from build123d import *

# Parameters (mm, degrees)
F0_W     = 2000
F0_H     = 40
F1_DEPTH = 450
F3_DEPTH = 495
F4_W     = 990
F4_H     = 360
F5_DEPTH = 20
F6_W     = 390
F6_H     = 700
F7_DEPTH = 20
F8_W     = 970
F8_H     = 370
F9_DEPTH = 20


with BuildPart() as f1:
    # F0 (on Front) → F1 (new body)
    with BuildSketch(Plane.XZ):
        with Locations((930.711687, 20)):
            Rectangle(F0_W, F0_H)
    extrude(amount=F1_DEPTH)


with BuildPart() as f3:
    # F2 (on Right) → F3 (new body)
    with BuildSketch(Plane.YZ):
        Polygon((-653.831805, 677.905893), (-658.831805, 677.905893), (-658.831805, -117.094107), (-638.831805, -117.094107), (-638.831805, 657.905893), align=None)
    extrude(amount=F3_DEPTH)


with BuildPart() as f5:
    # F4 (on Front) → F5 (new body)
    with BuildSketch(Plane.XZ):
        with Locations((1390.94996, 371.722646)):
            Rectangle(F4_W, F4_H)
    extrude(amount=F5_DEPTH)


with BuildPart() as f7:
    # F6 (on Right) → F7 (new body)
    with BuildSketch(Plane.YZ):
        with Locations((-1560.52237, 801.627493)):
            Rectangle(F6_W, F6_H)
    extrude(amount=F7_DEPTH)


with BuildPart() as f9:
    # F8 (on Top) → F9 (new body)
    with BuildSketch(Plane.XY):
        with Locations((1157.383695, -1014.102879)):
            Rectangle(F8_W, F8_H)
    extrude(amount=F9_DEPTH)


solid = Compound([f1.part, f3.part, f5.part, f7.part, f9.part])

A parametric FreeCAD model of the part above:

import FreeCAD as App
import Part
import Sketcher
from FreeCAD import Vector
Q = App.Units.Quantity

doc = App.newDocument("Part")
body = doc.addObject("PartDesign::Body", "Body")

sketch1 = doc.addObject("Sketcher::SketchObject", "Sketch")
body.addObject(sketch1)
sketch1.AttachmentSupport = (doc.XZ_Plane, [""])
sketch1.MapMode = "FlatFace"
sketch1.addGeometry(Part.LineSegment(Vector(-69, 40, 0), Vector(-69, 0, 0)), False)
sketch1.addGeometry(Part.LineSegment(Vector(-69, 0, 0), Vector(1931, 0, 0)), False)
sketch1.addGeometry(Part.LineSegment(Vector(1931, 0, 0), Vector(1931, 40, 0)), False)
sketch1.addGeometry(Part.LineSegment(Vector(1931, 40, 0), Vector(-69, 40, 0)), False)
sketch1.addConstraint(Sketcher.Constraint("Coincident", 0, 2, 1, 1))
sketch1.addConstraint(Sketcher.Constraint("Coincident", 1, 2, 2, 1))
sketch1.addConstraint(Sketcher.Constraint("Coincident", 2, 2, 3, 1))
sketch1.addConstraint(Sketcher.Constraint("Coincident", 3, 2, 0, 1))
sketch1.addConstraint(Sketcher.Constraint("Vertical", 0))
sketch1.addConstraint(Sketcher.Constraint("Horizontal", 1))
sketch1.addConstraint(Sketcher.Constraint("Vertical", 2))
sketch1.addConstraint(Sketcher.Constraint("Horizontal", 3))
sketch1.addConstraint(Sketcher.Constraint("PointOnObject", 0, 2, -1))
sketch1.addConstraint(Sketcher.Constraint("DistanceX", 1, 1, 1, 2, Q("2000 mm")))
sketch1.addConstraint(Sketcher.Constraint("DistanceY", 0, 2, 0, 1, Q("40 mm")))
sketch1.addConstraint(Sketcher.Constraint("DistanceX", 0, 2, -1, 1, Q("69.288313 mm")))
pad1 = doc.addObject("PartDesign::Pad", "Pad")
body.addObject(pad1)
pad1.Profile = sketch1
pad1.Length = 450
body2 = doc.addObject("PartDesign::Body", "Body001")

sketch2 = doc.addObject("Sketcher::SketchObject", "Sketch001")
body2.addObject(sketch2)
sketch2.AttachmentSupport = (doc.getObject("YZ_Plane001"), [""])
sketch2.MapMode = "FlatFace"
sketch2.addGeometry(Part.LineSegment(Vector(-654, 678, 0), Vector(-659, 678, 0)), False)
sketch2.addGeometry(Part.LineSegment(Vector(-659, 678, 0), Vector(-659, -117, 0)), False)
sketch2.addGeometry(Part.LineSegment(Vector(-659, -117, 0), Vector(-639, -117, 0)), False)
sketch2.addGeometry(Part.LineSegment(Vector(-639, -117, 0), Vector(-639, 658, 0)), False)
sketch2.addGeometry(Part.LineSegment(Vector(-639, 658, 0), Vector(-654, 678, 0)), False)
sketch2.addConstraint(Sketcher.Constraint("Coincident", 0, 2, 1, 1))
sketch2.addConstraint(Sketcher.Constraint("Coincident", 1, 2, 2, 1))
sketch2.addConstraint(Sketcher.Constraint("Coincident", 2, 2, 3, 1))
sketch2.addConstraint(Sketcher.Constraint("Coincident", 3, 2, 4, 1))
sketch2.addConstraint(Sketcher.Constraint("Coincident", 4, 2, 0, 1))
sketch2.addConstraint(Sketcher.Constraint("Horizontal", 0))
sketch2.addConstraint(Sketcher.Constraint("Vertical", 1))
sketch2.addConstraint(Sketcher.Constraint("Horizontal", 2))
sketch2.addConstraint(Sketcher.Constraint("Vertical", 3))
sketch2.addConstraint(Sketcher.Constraint("DistanceX", 0, 2, 0, 1, Q("5 mm")))
sketch2.addConstraint(Sketcher.Constraint("DistanceX", 2, 1, 2, 2, Q("20 mm")))
sketch2.addConstraint(Sketcher.Constraint("DistanceY", 1, 2, 1, 1, Q("795 mm")))
sketch2.addConstraint(Sketcher.Constraint("DistanceY", 3, 1, 3, 2, Q("775 mm")))
sketch2.addConstraint(Sketcher.Constraint("DistanceX", 0, 2, -1, 1, Q("658.831805 mm")))
sketch2.addConstraint(Sketcher.Constraint("DistanceY", -1, 1, 0, 2, Q("677.905893 mm")))
pad2 = doc.addObject("PartDesign::Pad", "Pad001")
body2.addObject(pad2)
pad2.Profile = sketch2
pad2.Length = 495
body3 = doc.addObject("PartDesign::Body", "Body002")

sketch3 = doc.addObject("Sketcher::SketchObject", "Sketch002")
body3.addObject(sketch3)
sketch3.AttachmentSupport = (doc.getObject("XZ_Plane002"), [""])
sketch3.MapMode = "FlatFace"
sketch3.addGeometry(Part.LineSegment(Vector(896, 552, 0), Vector(896, 192, 0)), False)
sketch3.addGeometry(Part.LineSegment(Vector(896, 192, 0), Vector(1886, 192, 0)), False)
sketch3.addGeometry(Part.LineSegment(Vector(1886, 192, 0), Vector(1886, 552, 0)), False)
sketch3.addGeometry(Part.LineSegment(Vector(1886, 552, 0), Vector(896, 552, 0)), False)
sketch3.addConstraint(Sketcher.Constraint("Coincident", 0, 2, 1, 1))
sketch3.addConstraint(Sketcher.Constraint("Coincident", 1, 2, 2, 1))
sketch3.addConstraint(Sketcher.Constraint("Coincident", 2, 2, 3, 1))
sketch3.addConstraint(Sketcher.Constraint("Coincident", 3, 2, 0, 1))
sketch3.addConstraint(Sketcher.Constraint("Vertical", 0))
sketch3.addConstraint(Sketcher.Constraint("Horizontal", 1))
sketch3.addConstraint(Sketcher.Constraint("Vertical", 2))
sketch3.addConstraint(Sketcher.Constraint("Horizontal", 3))
sketch3.addConstraint(Sketcher.Constraint("DistanceX", 1, 1, 1, 2, Q("990 mm")))
sketch3.addConstraint(Sketcher.Constraint("DistanceY", 0, 2, 0, 1, Q("360 mm")))
sketch3.addConstraint(Sketcher.Constraint("DistanceX", -1, 1, 0, 2, Q("895.94996 mm")))
sketch3.addConstraint(Sketcher.Constraint("DistanceY", -1, 1, 0, 2, Q("191.722646 mm")))
pad3 = doc.addObject("PartDesign::Pad", "Pad002")
body3.addObject(pad3)
pad3.Profile = sketch3
pad3.Length = 20
body4 = doc.addObject("PartDesign::Body", "Body003")

sketch4 = doc.addObject("Sketcher::SketchObject", "Sketch003")
body4.addObject(sketch4)
sketch4.AttachmentSupport = (doc.getObject("YZ_Plane003"), [""])
sketch4.MapMode = "FlatFace"
sketch4.addGeometry(Part.LineSegment(Vector(-1756, 1152, 0), Vector(-1756, 452, 0)), False)
sketch4.addGeometry(Part.LineSegment(Vector(-1756, 452, 0), Vector(-1366, 452, 0)), False)
sketch4.addGeometry(Part.LineSegment(Vector(-1366, 452, 0), Vector(-1366, 1152, 0)), False)
sketch4.addGeometry(Part.LineSegment(Vector(-1366, 1152, 0), Vector(-1756, 1152, 0)), False)
sketch4.addConstraint(Sketcher.Constraint("Coincident", 0, 2, 1, 1))
sketch4.addConstraint(Sketcher.Constraint("Coincident", 1, 2, 2, 1))
sketch4.addConstraint(Sketcher.Constraint("Coincident", 2, 2, 3, 1))
sketch4.addConstraint(Sketcher.Constraint("Coincident", 3, 2, 0, 1))
sketch4.addConstraint(Sketcher.Constraint("Vertical", 0))
sketch4.addConstraint(Sketcher.Constraint("Horizontal", 1))
sketch4.addConstraint(Sketcher.Constraint("Vertical", 2))
sketch4.addConstraint(Sketcher.Constraint("Horizontal", 3))
sketch4.addConstraint(Sketcher.Constraint("DistanceX", 1, 1, 1, 2, Q("390 mm")))
sketch4.addConstraint(Sketcher.Constraint("DistanceY", 0, 2, 0, 1, Q("700 mm")))
sketch4.addConstraint(Sketcher.Constraint("DistanceX", 0, 2, -1, 1, Q("1755.52237 mm")))
sketch4.addConstraint(Sketcher.Constraint("DistanceY", -1, 1, 0, 2, Q("451.627493 mm")))
pad4 = doc.addObject("PartDesign::Pad", "Pad003")
body4.addObject(pad4)
pad4.Profile = sketch4
pad4.Length = 20
body5 = doc.addObject("PartDesign::Body", "Body004")

sketch5 = doc.addObject("Sketcher::SketchObject", "Sketch004")
body5.addObject(sketch5)
sketch5.AttachmentSupport = (doc.getObject("XY_Plane004"), [""])
sketch5.MapMode = "FlatFace"
sketch5.addGeometry(Part.LineSegment(Vector(672, -829, 0), Vector(672, -1199, 0)), False)
sketch5.addGeometry(Part.LineSegment(Vector(672, -1199, 0), Vector(1642, -1199, 0)), False)
sketch5.addGeometry(Part.LineSegment(Vector(1642, -1199, 0), Vector(1642, -829, 0)), False)
sketch5.addGeometry(Part.LineSegment(Vector(1642, -829, 0), Vector(672, -829, 0)), False)
sketch5.addConstraint(Sketcher.Constraint("Coincident", 0, 2, 1, 1))
sketch5.addConstraint(Sketcher.Constraint("Coincident", 1, 2, 2, 1))
sketch5.addConstraint(Sketcher.Constraint("Coincident", 2, 2, 3, 1))
sketch5.addConstraint(Sketcher.Constraint("Coincident", 3, 2, 0, 1))
sketch5.addConstraint(Sketcher.Constraint("Vertical", 0))
sketch5.addConstraint(Sketcher.Constraint("Horizontal", 1))
sketch5.addConstraint(Sketcher.Constraint("Vertical", 2))
sketch5.addConstraint(Sketcher.Constraint("Horizontal", 3))
sketch5.addConstraint(Sketcher.Constraint("DistanceX", 1, 1, 1, 2, Q("970 mm")))
sketch5.addConstraint(Sketcher.Constraint("DistanceY", 0, 2, 0, 1, Q("370 mm")))
sketch5.addConstraint(Sketcher.Constraint("DistanceY", 0, 2, -1, 1, Q("1199.102879 mm")))
sketch5.addConstraint(Sketcher.Constraint("DistanceX", -1, 1, 0, 2, Q("672.383695 mm")))
pad5 = doc.addObject("PartDesign::Pad", "Pad004")
body5.addObject(pad5)
pad5.Profile = sketch5
pad5.Length = 20

doc.recompute()
